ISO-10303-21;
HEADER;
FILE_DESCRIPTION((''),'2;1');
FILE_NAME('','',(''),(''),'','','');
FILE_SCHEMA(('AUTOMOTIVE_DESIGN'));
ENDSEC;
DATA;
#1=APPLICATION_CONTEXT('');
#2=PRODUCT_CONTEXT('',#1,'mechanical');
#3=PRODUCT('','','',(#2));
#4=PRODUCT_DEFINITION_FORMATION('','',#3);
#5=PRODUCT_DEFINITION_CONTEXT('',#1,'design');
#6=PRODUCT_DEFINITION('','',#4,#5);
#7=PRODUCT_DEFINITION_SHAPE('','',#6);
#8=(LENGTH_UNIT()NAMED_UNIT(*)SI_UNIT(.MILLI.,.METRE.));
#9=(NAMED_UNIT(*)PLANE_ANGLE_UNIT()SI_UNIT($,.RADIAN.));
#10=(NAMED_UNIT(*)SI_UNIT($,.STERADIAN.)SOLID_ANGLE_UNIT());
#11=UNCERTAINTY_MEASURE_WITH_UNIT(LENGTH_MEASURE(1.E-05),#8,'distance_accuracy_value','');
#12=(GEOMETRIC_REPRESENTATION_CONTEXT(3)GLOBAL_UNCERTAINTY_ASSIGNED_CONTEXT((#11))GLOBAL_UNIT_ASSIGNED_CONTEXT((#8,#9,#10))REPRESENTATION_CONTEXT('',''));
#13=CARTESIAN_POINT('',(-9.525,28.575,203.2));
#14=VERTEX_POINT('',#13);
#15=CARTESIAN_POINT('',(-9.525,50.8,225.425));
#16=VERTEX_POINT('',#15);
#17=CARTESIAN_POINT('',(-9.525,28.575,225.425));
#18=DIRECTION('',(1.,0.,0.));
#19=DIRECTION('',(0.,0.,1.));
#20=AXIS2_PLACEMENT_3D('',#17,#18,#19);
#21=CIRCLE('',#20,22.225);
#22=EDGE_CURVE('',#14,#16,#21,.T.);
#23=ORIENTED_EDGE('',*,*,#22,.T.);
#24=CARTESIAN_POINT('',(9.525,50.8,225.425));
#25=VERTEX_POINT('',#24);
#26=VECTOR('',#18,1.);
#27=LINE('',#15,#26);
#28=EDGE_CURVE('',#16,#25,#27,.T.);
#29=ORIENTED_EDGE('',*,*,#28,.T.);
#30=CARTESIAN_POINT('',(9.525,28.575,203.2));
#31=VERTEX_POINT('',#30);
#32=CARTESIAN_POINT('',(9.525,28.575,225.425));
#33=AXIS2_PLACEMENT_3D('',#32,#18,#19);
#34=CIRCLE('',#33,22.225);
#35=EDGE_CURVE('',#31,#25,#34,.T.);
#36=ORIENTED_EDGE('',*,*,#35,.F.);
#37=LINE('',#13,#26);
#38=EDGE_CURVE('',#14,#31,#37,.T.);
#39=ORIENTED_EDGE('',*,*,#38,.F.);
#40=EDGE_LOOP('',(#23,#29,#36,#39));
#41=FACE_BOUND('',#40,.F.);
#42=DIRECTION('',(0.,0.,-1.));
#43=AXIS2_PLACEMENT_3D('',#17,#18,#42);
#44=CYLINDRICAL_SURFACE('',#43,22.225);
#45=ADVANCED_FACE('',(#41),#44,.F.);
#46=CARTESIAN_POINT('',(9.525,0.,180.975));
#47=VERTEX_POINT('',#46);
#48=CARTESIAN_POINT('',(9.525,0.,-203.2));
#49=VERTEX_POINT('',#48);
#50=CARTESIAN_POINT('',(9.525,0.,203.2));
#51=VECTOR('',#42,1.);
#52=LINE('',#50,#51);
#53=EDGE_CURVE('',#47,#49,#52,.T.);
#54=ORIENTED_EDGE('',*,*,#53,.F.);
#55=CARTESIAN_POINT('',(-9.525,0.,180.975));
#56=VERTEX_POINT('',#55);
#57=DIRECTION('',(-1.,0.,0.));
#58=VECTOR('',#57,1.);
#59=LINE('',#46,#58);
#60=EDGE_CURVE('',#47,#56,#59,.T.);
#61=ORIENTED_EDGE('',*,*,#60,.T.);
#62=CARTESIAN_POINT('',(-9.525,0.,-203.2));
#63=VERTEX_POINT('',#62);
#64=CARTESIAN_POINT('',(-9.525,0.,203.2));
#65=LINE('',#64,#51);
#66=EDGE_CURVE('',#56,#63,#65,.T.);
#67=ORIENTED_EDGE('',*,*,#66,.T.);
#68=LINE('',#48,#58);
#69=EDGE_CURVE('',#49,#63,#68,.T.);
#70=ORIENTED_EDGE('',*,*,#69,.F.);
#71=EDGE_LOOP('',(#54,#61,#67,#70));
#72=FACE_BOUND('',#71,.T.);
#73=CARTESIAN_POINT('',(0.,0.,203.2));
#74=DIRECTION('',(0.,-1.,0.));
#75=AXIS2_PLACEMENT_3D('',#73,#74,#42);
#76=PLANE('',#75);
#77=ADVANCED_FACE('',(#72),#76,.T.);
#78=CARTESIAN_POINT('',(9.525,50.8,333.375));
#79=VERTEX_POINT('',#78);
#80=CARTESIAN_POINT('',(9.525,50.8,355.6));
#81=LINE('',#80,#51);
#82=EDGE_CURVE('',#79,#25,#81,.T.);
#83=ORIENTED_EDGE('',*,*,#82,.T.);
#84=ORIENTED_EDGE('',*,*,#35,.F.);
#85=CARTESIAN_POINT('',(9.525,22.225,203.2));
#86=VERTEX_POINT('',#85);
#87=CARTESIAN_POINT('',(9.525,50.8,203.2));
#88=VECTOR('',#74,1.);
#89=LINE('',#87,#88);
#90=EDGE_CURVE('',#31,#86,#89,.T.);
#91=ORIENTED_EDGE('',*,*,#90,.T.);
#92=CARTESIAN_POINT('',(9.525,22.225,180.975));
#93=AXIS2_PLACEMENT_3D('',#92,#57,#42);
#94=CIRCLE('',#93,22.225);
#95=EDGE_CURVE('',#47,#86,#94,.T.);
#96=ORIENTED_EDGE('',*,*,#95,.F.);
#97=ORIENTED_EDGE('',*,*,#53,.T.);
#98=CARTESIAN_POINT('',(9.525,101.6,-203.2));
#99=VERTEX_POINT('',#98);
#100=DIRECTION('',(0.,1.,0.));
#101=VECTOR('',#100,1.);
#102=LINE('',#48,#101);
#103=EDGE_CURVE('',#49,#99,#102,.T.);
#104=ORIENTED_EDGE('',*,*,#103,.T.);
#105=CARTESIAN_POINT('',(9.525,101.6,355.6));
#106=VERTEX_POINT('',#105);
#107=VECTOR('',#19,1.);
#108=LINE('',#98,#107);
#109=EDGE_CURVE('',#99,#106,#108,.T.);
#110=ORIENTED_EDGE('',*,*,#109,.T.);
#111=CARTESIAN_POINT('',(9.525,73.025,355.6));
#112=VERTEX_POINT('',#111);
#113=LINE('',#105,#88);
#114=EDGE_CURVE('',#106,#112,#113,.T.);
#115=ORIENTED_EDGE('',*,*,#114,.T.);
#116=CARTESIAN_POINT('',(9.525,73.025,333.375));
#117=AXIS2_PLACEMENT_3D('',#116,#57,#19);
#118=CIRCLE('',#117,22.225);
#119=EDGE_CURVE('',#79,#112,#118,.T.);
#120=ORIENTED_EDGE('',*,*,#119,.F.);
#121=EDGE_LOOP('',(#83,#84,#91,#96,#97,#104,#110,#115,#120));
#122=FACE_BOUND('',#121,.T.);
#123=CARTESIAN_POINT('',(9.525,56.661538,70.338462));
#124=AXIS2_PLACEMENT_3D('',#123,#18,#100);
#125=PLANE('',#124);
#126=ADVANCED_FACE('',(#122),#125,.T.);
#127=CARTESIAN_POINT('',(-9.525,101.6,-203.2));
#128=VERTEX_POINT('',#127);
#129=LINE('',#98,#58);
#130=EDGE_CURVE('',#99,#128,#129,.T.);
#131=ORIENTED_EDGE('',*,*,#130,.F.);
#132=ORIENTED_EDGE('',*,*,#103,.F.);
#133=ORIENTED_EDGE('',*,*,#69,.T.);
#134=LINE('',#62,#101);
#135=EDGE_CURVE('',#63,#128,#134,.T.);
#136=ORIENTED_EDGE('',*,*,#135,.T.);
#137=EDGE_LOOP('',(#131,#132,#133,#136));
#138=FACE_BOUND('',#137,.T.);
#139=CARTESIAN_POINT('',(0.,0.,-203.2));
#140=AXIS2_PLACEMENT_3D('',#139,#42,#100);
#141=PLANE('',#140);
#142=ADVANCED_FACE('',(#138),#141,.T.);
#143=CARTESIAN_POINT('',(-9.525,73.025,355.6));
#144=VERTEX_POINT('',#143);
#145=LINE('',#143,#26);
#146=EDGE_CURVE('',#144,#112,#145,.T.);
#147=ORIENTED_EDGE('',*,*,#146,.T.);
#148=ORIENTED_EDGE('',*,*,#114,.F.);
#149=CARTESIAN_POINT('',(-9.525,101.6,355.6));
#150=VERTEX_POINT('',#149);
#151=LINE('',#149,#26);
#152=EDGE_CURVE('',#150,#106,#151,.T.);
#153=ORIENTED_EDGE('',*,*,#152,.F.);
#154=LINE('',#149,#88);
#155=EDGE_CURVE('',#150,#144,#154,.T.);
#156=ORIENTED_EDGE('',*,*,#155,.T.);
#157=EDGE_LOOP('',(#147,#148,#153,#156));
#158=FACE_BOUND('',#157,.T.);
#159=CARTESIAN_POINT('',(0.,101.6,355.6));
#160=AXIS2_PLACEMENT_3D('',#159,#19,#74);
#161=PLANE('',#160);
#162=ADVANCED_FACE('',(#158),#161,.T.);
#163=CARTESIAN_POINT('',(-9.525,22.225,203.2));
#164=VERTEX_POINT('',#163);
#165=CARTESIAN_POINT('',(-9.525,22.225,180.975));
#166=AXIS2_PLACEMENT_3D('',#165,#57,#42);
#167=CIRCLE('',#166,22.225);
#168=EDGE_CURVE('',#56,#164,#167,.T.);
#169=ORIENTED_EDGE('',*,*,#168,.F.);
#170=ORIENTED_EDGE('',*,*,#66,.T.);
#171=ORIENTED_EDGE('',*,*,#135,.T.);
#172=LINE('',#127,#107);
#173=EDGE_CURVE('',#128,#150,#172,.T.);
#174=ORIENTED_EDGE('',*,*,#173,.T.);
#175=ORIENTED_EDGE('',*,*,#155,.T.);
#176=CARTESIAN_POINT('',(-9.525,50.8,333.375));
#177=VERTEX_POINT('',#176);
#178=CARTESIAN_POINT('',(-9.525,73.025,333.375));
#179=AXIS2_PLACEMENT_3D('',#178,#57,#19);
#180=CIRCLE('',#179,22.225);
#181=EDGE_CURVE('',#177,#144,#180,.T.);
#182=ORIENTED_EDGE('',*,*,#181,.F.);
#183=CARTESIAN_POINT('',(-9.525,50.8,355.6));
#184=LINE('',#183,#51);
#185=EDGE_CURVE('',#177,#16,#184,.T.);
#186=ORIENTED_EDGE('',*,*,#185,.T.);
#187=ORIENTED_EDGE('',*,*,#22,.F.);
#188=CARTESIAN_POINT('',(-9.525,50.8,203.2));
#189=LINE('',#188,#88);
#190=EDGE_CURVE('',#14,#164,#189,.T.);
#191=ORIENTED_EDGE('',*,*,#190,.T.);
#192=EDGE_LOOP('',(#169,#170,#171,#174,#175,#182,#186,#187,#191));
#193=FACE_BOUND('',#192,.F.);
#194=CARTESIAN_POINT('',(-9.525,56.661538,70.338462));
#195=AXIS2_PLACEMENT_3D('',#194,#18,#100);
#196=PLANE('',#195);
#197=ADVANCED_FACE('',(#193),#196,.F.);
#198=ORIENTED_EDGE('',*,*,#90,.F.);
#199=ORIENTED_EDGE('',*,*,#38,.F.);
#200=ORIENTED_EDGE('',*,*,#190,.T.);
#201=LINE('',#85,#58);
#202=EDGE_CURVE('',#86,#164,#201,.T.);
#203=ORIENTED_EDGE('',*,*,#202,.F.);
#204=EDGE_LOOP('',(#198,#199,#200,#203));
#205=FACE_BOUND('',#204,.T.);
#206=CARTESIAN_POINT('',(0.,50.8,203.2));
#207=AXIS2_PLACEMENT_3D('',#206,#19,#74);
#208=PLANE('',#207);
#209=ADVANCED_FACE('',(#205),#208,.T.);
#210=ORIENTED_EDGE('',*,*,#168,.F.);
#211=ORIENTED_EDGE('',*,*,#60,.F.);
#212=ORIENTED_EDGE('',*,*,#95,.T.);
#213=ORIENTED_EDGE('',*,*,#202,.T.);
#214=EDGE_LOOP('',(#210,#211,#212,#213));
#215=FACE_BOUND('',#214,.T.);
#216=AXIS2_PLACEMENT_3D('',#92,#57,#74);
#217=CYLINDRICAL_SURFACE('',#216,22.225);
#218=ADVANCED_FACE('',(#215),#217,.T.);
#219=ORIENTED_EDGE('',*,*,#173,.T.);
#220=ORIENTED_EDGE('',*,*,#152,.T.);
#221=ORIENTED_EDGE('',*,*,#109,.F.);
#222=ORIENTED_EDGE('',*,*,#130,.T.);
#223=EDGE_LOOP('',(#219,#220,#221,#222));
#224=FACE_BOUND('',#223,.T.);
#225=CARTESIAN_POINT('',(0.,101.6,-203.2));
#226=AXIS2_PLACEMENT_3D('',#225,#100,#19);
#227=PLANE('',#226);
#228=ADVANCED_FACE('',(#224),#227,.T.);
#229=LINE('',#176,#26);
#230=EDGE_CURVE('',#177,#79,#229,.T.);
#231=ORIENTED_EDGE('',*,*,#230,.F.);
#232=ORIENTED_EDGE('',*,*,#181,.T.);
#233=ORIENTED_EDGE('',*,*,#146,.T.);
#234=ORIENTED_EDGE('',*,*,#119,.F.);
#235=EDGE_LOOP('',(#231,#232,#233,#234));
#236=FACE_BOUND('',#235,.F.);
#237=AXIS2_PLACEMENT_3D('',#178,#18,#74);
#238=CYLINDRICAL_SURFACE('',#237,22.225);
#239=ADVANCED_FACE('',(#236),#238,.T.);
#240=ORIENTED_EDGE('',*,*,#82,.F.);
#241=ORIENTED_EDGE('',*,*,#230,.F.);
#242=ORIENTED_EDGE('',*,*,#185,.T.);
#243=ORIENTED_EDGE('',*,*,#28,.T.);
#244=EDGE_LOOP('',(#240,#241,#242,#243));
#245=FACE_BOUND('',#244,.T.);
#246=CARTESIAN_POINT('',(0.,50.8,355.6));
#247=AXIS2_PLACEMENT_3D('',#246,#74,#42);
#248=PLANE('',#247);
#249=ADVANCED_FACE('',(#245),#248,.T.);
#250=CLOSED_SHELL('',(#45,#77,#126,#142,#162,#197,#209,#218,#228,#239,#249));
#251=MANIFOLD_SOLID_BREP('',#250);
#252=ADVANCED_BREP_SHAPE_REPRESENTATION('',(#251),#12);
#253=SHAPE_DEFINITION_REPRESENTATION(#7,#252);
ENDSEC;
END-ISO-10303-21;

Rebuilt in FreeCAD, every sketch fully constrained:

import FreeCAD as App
import Part
import Sketcher
from FreeCAD import Vector
Q = App.Units.Quantity


def edges_at(feature, points):
    """Names of the edges that pass closest to the given points."""
    edges = feature.Shape.Edges
    near = lambda p: min(range(len(edges)), key=lambda i: edges[i].distToShape(Part.Vertex(*p))[0])
    return sorted({f"Edge{near(p) + 1}" for p in points})

doc = App.newDocument("Part")
params = doc.addObject("Spreadsheet::Sheet", "Params")
for row, (alias, value) in enumerate([
    ("sketch1_width", "2 in"),
    ("sketch1_height", "22 in"),
    ("sketch1_height2", "6 in"),
    ("pad1_length", "0.75 in"),
    ("fillet_radius", "0.875 in"),
], start=1):
    params.set(f"A{row}", alias)
    params.set(f"B{row}", "=" + value)
    params.setAlias(f"B{row}", alias)

body = doc.addObject("PartDesign::Body", "Body")

# Sketch on YZ plane
sketch1 = doc.addObject("Sketcher::SketchObject", "Sketch")
body.addObject(sketch1)
sketch1.AttachmentSupport = (doc.YZ_Plane, [""])
sketch1.MapMode = "FlatFace"
sketch1.addGeometry([
    Part.LineSegment(Vector(102, -203, 0), Vector(102, 356, 0)),  # 0
    Part.LineSegment(Vector(102, 356, 0), Vector(51, 356, 0)),  # 1
    Part.LineSegment(Vector(51, 356, 0), Vector(51, 203, 0)),  # 2
    Part.LineSegment(Vector(51, 203, 0), Vector(0, 203, 0)),  # 3
    Part.LineSegment(Vector(0, 203, 0), Vector(0, -203, 0)),  # 4
    Part.LineSegment(Vector(0, -203, 0), Vector(102, -203, 0)),  # 5
], False)
sketch1.addConstraint([
    Sketcher.Constraint("Coincident", 0, 2, 1, 1),
    Sketcher.Constraint("Coincident", 1, 2, 2, 1),
    Sketcher.Constraint("Coincident", 2, 2, 3, 1),
    Sketcher.Constraint("Coincident", 3, 2, 4, 1),
    Sketcher.Constraint("Coincident", 4, 2, 5, 1),
    Sketcher.Constraint("Coincident", 5, 2, 0, 1),
    Sketcher.Constraint("Vertical", 0),
    Sketcher.Constraint("Horizontal", 1),
    Sketcher.Constraint("Vertical", 2),
    Sketcher.Constraint("Horizontal", 3),
    Sketcher.Constraint("Vertical", 4),
    Sketcher.Constraint("Horizontal", 5),
    Sketcher.Constraint("Symmetric", 3, 2, 4, 2, -1, 1),
    Sketcher.Constraint("Equal", 1, 3),
    Sketcher.Constraint("DistanceX", 1, 2, 1, 1, Q("2 in")),
    Sketcher.Constraint("DistanceY", 0, 1, 0, 2, Q("22 in")),
    Sketcher.Constraint("DistanceY", 2, 2, 2, 1, Q("6 in")),
])
sketch1.setExpression("Constraints[14]", "Params.sketch1_width")
sketch1.setExpression("Constraints[15]", "Params.sketch1_height")
sketch1.setExpression("Constraints[16]", "Params.sketch1_height2")
pad1 = doc.addObject("PartDesign::Pad", "Pad")
body.addObject(pad1)
pad1.Profile = sketch1
pad1.setExpression("Length", "Params.pad1_length")
pad1.Midplane = True
doc.recompute()

fillet = doc.addObject("PartDesign::Fillet", "Fillet")
body.addObject(fillet)
fillet.Base = (pad1, edges_at(pad1, [(0, 50.8, 355.6), (0, 50.8, 203.2), (0, 0, 203.2)]))
fillet.setExpression("Radius", "Params.fillet_radius")

doc.recompute()
